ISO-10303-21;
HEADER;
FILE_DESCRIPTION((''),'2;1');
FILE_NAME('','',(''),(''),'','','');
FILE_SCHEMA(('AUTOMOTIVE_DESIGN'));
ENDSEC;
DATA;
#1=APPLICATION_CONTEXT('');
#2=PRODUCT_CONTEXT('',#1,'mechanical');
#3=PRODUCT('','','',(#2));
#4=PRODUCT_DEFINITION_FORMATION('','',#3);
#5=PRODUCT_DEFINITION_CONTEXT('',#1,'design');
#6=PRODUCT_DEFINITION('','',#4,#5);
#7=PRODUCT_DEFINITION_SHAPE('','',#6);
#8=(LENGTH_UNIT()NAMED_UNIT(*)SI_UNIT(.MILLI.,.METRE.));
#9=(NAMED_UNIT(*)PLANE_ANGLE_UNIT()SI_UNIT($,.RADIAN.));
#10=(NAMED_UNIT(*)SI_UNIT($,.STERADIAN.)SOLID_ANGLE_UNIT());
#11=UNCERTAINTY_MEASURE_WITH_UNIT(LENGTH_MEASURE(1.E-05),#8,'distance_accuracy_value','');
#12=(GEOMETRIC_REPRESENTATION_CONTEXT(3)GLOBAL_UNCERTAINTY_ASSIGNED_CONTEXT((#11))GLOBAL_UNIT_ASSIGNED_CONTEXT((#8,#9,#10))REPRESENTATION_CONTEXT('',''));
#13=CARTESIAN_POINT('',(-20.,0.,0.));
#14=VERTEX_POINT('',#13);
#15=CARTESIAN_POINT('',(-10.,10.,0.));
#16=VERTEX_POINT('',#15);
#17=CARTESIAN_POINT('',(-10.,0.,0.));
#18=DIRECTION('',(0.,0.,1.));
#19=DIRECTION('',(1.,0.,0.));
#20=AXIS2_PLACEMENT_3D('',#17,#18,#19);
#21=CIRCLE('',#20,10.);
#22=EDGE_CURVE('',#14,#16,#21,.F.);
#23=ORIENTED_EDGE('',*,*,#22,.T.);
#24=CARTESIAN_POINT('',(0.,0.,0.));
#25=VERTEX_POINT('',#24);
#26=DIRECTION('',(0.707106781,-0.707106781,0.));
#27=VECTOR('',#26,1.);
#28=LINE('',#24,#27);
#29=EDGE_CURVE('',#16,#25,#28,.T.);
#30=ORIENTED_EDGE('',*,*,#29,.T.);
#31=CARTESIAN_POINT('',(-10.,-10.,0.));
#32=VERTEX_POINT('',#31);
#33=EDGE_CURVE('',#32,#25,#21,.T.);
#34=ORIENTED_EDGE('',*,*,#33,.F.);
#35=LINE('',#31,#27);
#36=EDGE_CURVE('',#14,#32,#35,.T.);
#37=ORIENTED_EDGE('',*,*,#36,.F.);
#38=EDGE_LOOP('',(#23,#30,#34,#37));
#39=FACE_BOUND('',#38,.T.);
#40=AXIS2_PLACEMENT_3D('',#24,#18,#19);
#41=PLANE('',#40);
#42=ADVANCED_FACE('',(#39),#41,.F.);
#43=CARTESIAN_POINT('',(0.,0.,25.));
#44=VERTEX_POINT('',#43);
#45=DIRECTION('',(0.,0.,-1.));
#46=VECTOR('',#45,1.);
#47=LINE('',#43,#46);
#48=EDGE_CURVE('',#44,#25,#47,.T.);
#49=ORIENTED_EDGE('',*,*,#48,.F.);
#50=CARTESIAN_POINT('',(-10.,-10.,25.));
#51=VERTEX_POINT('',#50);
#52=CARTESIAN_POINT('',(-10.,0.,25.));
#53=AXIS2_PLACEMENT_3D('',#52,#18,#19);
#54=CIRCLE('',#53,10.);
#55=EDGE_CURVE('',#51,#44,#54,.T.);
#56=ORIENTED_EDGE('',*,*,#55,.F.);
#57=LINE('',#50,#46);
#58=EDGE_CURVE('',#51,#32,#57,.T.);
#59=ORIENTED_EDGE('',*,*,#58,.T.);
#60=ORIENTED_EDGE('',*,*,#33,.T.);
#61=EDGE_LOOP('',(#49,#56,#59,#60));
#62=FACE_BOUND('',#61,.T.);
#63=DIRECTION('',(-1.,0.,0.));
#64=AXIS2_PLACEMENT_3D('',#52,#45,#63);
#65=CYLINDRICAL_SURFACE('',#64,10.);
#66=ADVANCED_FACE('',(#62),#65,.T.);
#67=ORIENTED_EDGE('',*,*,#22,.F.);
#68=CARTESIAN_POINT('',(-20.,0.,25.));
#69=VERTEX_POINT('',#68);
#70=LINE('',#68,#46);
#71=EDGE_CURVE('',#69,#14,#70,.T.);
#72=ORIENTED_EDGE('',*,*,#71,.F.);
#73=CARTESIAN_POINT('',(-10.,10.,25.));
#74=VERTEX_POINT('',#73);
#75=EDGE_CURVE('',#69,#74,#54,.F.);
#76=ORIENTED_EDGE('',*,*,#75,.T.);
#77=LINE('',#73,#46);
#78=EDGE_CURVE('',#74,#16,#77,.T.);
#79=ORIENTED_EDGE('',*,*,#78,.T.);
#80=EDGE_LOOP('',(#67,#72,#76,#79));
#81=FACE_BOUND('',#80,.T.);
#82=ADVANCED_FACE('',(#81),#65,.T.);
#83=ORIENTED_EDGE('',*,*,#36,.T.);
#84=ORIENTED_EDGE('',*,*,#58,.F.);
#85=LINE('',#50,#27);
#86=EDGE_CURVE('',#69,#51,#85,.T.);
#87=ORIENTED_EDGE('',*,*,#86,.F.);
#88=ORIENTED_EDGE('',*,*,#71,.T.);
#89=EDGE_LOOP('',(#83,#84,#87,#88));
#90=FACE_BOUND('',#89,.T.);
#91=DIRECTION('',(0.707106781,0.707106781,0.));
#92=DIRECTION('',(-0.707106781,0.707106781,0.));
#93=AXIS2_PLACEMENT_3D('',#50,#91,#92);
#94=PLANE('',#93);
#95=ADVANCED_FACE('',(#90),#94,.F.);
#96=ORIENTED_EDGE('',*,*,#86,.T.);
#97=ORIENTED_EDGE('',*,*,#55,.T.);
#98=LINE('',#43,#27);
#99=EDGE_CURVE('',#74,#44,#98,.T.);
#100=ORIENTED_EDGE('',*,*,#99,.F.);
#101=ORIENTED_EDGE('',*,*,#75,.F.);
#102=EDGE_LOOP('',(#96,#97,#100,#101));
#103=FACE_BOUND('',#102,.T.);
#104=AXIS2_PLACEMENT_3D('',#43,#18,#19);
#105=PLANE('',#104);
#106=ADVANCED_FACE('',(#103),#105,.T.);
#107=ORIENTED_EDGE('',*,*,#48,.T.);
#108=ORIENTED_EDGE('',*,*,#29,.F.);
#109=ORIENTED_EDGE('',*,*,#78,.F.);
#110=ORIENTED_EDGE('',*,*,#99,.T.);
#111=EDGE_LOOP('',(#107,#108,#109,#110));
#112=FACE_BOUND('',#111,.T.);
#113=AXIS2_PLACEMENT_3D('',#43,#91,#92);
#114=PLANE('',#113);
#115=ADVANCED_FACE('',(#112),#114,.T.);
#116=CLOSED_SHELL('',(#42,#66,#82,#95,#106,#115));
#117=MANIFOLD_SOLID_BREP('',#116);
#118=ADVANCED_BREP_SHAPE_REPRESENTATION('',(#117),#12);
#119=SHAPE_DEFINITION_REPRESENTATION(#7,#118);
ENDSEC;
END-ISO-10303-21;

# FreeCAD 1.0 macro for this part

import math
import FreeCAD as App
import Part
import Sketcher
Q = App.Units.Quantity

doc = App.newDocument("Part")
body = doc.addObject("PartDesign::Body", "Body")

# Sketch on XY plane
sketch1 = body.newObject("Sketcher::SketchObject", "Sketch")
sketch1.AttachmentSupport = (doc.getObject("XY_Plane"), [""])
sketch1.MapMode = "FlatFace"
sketch1.addGeometry([
    Part.LineSegment(App.Vector(-20, 0, 0), App.Vector(-10, -10, 0)),
    Part.ArcOfCircle(Part.Circle(App.Vector(-10, 0, 0), App.Vector(0, 0, 1), 10), math.radians(-90), math.radians(0)),
    Part.LineSegment(App.Vector(0, 0, 0), App.Vector(-10, 10, 0)),
    Part.ArcOfCircle(Part.Circle(App.Vector(-10, 0, 0), App.Vector(0, 0, 1), 10), math.radians(90), math.radians(180)),
], False)
sketch1.addConstraint([
    Sketcher.Constraint("Coincident", 0, 2, 1, 1),
    Sketcher.Constraint("Coincident", 1, 2, 2, 1),
    Sketcher.Constraint("Coincident", 2, 2, 3, 1),
    Sketcher.Constraint("Coincident", 3, 2, 0, 1),
    Sketcher.Constraint("Coincident", 1, 2, -1, 1),
    Sketcher.Constraint("Coincident", 3, 3, 1, 3),
    Sketcher.Constraint("Equal", 1, 3),
    Sketcher.Constraint("Symmetric", 0, 2, 2, 2, -1),
    Sketcher.Constraint("PointOnObject", 3, 2, -1),
    Sketcher.Constraint("Parallel", 0, 2),
    Sketcher.Constraint("Radius", 1, Q("10 mm")),
])
pad1 = body.newObject("PartDesign::Pad", "Pad")
pad1.Profile = sketch1
pad1.Length = 25

doc.recompute()
